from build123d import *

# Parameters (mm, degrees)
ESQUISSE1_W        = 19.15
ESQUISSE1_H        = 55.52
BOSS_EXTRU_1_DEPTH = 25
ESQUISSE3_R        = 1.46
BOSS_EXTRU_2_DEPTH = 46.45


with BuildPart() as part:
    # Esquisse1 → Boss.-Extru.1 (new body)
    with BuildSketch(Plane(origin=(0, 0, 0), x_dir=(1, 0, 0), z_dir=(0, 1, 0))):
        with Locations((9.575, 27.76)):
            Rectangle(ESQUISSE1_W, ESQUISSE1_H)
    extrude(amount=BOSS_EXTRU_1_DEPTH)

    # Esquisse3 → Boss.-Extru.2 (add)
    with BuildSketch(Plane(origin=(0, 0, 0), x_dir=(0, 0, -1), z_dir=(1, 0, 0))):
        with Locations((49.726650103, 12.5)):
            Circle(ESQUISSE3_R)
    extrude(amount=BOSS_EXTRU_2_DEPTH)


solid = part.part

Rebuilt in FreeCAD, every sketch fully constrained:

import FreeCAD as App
import Part
import Sketcher


def add_polygon(sketch, points):
    """Adds a closed chain of lines whose ends are joined by coincident constraints."""
    first, n = sketch.GeometryCount, len(points)
    for a, b in zip(points, points[1:] + points[:1]):
        sketch.addGeometry(Part.LineSegment(App.Vector(*a, 0), App.Vector(*b, 0)), False)
    for i in range(n):
        sketch.addConstraint(Sketcher.Constraint("Coincident", first + i, 2, first + (i + 1) % n, 1))

doc = App.newDocument("Part")
body = doc.addObject("PartDesign::Body", "Body")

# Sketch on XZ plane
sketch1 = body.newObject("Sketcher::SketchObject", "Sketch")
sketch1.AttachmentSupport = (doc.getObject("XZ_Plane"), [""])
sketch1.MapMode = "FlatFace"
add_polygon(sketch1, [(0, -55.52), (0, 0), (19.15, 0), (19.15, -55.52)])  # lines 0-3
sketch1.addConstraint(Sketcher.Constraint("Vertical", 0))
sketch1.addConstraint(Sketcher.Constraint("Horizontal", 1))
sketch1.addConstraint(Sketcher.Constraint("Vertical", 2))
sketch1.addConstraint(Sketcher.Constraint("Horizontal", 3))
sketch1.addConstraint(Sketcher.Constraint("Coincident", 0, 2, -1, 1))
sketch1.addConstraint(Sketcher.Constraint("DistanceX", 1, 1, 1, 2, 19.15))
sketch1.addConstraint(Sketcher.Constraint("DistanceY", 0, 1, 0, 2, 55.52))
pad1 = body.newObject("PartDesign::Pad", "Pad")
pad1.Profile = sketch1
pad1.Length = 25
pad1.Reversed = True

# Sketch on YZ plane
sketch2 = body.newObject("Sketcher::SketchObject", "Sketch001")
sketch2.AttachmentSupport = (doc.getObject("YZ_Plane"), [""])
sketch2.MapMode = "FlatFace"
sketch2.addGeometry(Part.Circle(App.Vector(12.5, -49.72665, 0), App.Vector(0, 0, 1), 1.46), False)
sketch2.addConstraint(Sketcher.Constraint("Diameter", 0, 2.92))
sketch2.addConstraint(Sketcher.Constraint("DistanceX", -1, 1, 0, 3, 12.5))
sketch2.addConstraint(Sketcher.Constraint("DistanceY", 0, 3, -1, 1, 49.72665))
pad2 = body.newObject("PartDesign::Pad", "Pad001")
pad2.Profile = sketch2
pad2.Length = 46.45

doc.recompute()
